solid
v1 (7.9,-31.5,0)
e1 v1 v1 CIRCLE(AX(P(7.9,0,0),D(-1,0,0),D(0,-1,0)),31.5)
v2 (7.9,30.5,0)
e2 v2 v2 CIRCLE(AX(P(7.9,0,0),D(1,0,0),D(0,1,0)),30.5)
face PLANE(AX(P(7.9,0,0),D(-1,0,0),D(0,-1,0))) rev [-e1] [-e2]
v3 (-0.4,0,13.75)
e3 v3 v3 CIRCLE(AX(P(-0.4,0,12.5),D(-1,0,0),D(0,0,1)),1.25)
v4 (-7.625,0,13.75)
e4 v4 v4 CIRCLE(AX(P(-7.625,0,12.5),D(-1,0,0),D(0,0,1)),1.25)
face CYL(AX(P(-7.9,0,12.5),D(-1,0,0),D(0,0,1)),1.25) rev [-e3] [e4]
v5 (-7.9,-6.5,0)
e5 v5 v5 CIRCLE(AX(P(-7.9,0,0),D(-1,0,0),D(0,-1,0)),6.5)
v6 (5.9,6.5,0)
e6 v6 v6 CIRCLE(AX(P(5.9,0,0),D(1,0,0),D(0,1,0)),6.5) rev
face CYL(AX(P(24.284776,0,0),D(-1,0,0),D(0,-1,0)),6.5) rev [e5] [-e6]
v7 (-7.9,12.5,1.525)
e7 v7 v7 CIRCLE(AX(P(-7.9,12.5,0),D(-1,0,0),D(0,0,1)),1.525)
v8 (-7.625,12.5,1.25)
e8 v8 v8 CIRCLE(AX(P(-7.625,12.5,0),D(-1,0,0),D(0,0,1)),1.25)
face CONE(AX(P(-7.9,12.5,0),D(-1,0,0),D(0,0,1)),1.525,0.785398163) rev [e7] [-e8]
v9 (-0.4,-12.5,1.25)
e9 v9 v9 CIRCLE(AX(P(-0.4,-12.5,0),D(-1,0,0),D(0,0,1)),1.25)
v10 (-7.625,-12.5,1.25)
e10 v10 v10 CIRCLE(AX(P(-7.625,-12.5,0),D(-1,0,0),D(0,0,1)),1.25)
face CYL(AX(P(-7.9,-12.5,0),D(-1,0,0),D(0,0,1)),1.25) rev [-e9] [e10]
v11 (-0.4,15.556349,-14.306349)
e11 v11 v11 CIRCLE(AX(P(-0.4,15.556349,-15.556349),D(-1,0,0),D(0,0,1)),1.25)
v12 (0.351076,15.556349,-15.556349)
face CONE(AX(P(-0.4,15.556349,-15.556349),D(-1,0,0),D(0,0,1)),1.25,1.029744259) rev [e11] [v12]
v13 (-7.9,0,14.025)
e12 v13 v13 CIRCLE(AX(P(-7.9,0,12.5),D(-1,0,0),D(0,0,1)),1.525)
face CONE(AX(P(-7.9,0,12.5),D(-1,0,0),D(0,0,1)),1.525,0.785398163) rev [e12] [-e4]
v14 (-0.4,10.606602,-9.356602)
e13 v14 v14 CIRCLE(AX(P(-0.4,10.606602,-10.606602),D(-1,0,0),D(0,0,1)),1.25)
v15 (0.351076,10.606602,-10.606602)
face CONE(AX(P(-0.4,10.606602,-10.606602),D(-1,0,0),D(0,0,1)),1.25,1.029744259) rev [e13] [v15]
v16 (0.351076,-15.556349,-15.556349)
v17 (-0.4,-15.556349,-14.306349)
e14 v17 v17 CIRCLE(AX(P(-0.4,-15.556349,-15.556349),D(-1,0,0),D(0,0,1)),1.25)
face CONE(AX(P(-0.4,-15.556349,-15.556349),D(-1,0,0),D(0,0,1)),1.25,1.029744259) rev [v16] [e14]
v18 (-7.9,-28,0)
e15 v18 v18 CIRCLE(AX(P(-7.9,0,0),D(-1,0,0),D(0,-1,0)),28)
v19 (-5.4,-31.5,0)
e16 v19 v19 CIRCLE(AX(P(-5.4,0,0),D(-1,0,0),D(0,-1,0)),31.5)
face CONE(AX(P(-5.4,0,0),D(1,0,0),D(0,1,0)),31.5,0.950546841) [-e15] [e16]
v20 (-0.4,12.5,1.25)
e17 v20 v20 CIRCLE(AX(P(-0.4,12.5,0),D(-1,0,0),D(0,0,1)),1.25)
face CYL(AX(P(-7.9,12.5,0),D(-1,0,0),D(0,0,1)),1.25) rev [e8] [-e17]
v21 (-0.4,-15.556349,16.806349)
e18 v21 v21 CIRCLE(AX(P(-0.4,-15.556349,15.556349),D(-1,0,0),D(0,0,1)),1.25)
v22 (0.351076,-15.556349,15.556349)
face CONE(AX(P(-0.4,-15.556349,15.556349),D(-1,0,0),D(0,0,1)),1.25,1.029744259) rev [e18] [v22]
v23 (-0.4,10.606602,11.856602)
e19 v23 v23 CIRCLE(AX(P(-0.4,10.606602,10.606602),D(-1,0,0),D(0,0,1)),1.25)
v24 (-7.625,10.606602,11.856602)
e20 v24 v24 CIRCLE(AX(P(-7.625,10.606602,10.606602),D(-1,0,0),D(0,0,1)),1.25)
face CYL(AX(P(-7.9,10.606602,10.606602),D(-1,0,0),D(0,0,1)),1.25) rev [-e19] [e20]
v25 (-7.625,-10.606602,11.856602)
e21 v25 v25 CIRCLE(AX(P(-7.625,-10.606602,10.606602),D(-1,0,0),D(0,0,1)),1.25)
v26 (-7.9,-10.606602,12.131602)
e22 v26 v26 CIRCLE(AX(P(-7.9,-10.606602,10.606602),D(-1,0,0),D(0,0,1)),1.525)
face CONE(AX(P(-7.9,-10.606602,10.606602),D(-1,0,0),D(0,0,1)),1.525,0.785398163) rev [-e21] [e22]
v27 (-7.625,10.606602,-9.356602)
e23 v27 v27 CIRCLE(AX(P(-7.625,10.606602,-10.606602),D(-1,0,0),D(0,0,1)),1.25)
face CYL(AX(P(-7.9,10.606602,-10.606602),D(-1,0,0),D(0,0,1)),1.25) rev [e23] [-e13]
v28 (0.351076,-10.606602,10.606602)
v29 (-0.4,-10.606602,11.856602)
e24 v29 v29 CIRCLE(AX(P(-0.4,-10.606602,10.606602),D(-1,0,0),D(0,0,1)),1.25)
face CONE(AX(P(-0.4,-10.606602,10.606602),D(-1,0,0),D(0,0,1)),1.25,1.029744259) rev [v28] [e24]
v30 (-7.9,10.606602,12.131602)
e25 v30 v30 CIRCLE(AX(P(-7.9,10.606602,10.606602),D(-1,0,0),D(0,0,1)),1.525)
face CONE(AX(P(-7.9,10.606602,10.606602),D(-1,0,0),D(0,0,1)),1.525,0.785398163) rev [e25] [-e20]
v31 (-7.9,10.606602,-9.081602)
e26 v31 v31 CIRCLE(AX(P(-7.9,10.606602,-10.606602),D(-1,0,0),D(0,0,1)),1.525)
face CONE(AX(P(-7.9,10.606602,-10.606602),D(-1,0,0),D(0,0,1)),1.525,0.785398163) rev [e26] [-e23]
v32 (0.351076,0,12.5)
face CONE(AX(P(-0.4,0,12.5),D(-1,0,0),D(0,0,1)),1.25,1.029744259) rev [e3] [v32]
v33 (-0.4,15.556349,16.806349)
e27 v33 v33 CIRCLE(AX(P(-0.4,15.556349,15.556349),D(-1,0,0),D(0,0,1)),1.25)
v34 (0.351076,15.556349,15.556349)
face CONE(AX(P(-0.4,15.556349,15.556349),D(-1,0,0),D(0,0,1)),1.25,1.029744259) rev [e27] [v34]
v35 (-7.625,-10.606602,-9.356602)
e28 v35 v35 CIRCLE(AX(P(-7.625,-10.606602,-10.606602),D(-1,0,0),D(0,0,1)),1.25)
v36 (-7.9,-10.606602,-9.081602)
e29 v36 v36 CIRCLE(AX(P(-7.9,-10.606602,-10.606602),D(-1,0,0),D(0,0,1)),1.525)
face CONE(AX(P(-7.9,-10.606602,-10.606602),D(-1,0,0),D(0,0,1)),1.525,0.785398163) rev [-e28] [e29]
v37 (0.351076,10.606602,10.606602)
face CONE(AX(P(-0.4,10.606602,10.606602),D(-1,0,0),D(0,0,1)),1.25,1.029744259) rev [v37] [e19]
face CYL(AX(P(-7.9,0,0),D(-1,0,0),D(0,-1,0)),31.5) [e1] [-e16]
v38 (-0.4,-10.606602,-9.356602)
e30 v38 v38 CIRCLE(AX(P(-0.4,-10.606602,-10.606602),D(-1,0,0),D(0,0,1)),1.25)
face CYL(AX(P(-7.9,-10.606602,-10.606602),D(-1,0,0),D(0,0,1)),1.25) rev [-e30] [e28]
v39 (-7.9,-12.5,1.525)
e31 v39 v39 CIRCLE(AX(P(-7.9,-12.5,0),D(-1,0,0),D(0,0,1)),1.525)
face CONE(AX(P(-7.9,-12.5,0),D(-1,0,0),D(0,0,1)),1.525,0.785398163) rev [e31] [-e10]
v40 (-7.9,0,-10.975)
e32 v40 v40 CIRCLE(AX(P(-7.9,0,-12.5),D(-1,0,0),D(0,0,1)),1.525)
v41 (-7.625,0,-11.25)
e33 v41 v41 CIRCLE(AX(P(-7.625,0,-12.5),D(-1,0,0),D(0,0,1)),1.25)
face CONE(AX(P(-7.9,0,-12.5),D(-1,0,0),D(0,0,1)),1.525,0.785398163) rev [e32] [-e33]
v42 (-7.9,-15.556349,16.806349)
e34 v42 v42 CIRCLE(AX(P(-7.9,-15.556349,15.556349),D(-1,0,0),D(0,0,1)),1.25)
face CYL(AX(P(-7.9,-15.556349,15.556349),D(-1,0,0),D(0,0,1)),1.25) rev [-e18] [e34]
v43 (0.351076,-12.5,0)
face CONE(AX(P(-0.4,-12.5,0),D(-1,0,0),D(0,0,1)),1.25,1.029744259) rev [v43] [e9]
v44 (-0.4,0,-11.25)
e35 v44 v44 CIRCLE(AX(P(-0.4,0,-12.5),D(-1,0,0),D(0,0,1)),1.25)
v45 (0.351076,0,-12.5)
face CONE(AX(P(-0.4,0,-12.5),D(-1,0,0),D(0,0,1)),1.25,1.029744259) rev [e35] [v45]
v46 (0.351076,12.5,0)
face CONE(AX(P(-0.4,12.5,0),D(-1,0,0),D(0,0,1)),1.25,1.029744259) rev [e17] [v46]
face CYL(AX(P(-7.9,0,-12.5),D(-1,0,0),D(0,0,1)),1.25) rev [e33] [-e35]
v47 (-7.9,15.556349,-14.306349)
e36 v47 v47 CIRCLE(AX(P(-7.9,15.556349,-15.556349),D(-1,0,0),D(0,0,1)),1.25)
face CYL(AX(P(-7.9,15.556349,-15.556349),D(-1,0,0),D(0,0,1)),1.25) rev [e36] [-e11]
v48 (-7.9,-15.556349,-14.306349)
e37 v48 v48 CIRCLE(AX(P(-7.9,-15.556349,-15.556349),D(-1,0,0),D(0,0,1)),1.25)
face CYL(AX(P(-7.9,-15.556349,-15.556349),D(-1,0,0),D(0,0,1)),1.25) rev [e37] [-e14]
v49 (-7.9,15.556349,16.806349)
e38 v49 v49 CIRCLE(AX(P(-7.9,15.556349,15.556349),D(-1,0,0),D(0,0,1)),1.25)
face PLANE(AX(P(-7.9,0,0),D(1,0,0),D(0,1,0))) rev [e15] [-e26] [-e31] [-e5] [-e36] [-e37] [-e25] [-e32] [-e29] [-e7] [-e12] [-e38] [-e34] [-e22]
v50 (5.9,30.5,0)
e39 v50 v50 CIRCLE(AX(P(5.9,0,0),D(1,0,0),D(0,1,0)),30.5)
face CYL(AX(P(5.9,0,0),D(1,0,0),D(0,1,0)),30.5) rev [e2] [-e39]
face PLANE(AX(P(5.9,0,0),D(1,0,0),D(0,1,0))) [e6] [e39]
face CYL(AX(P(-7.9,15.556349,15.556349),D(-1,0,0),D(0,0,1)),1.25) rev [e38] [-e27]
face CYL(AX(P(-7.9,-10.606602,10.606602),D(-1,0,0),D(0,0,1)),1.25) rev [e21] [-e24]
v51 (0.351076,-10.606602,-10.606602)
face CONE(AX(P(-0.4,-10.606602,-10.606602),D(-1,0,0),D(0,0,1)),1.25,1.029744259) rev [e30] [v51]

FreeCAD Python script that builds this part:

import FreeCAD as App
import Part
import Sketcher

V = App.Vector
Q = App.Units.Quantity


def add_polygon(sketch, points):
    """Adds a closed chain of lines whose ends are joined by coincident constraints."""
    first, n = sketch.GeometryCount, len(points)
    for a, b in zip(points, points[1:] + points[:1]):
        sketch.addGeometry(Part.LineSegment(App.Vector(*a, 0), App.Vector(*b, 0)), False)
    for i in range(n):
        sketch.addConstraint(Sketcher.Constraint("Coincident", first + i, 2, first + (i + 1) % n, 1))

doc = App.newDocument("Part")
body = doc.addObject("PartDesign::Body", "Body")

sketch1 = body.newObject("Sketcher::SketchObject", "Sketch")
sketch1.AttachmentSupport = (doc.getObject("XY_Plane"), [""])
sketch1.MapMode = "FlatFace"
add_polygon(sketch1, [(-7.9, 0), (7.9, 0), (7.9, 31.5), (-5.4, 31.5), (-7.9, 28)])
sketch1.addConstraint(Sketcher.Constraint("Horizontal", 0))
sketch1.addConstraint(Sketcher.Constraint("Vertical", 1))
sketch1.addConstraint(Sketcher.Constraint("Horizontal", 2))
sketch1.addConstraint(Sketcher.Constraint("Vertical", 4))
sketch1.addConstraint(Sketcher.Constraint("Symmetric", 0, 2, 4, 2, -1, 1))
sketch1.addConstraint(Sketcher.Constraint("DistanceY", 4, 2, 4, 1, Q("28 mm")))
sketch1.addConstraint(Sketcher.Constraint("DistanceX", 0, 1, 0, 2, Q("15.8 mm")))
sketch1.addConstraint(Sketcher.Constraint("DistanceX", 2, 2, 2, 1, Q("13.3 mm")))
sketch1.addConstraint(Sketcher.Constraint("DistanceY", 1, 1, 1, 2, Q("31.5 mm")))
revolution = body.newObject("PartDesign::Revolution", "Revolution")
revolution.Profile = sketch1
revolution.ReferenceAxis = (sketch1, ["H_Axis"])
revolution.Angle = 360

sketch2 = body.newObject("Sketcher::SketchObject", "Sketch001")
sketch2.AttachmentSupport = (doc.getObject("YZ_Plane"), [""])
sketch2.MapMode = "FlatFace"
sketch2.AttachmentOffset = App.Placement(V(0, 0, 7.9), App.Rotation())
sketch2.addGeometry(Part.Circle(V(0, 0, 0), V(0, 0, 1), 30.5), False)
sketch2.addConstraint(Sketcher.Constraint("Coincident", 0, 3, -1, 1))
sketch2.addConstraint(Sketcher.Constraint("Diameter", 0, Q("61 mm")))
pocket1 = body.newObject("PartDesign::Pocket", "Pocket")
pocket1.Profile = sketch2
pocket1.Length = 2

sketch3 = body.newObject("Sketcher::SketchObject", "Sketch002")
sketch3.AttachmentSupport = (doc.getObject("YZ_Plane"), [""])
sketch3.MapMode = "FlatFace"
sketch3.AttachmentOffset = App.Placement(V(0, 0, -7.9), App.Rotation())
sketch3.addGeometry(Part.Circle(V(15.556349, -15.556349, 0), V(0, 0, 1), 1.25), False)
sketch3.addGeometry(Part.Circle(V(15.556349, 15.556349, 0), V(0, 0, 1), 1.25), False)
sketch3.addGeometry(Part.Circle(V(-15.556349, 15.556349, 0), V(0, 0, 1), 1.25), False)
sketch3.addGeometry(Part.Circle(V(-15.556349, -15.556349, 0), V(0, 0, 1), 1.25), False)
sketch3.addConstraint(Sketcher.Constraint("Equal", 0, 1))
sketch3.addConstraint(Sketcher.Constraint("Equal", 1, 2))
sketch3.addConstraint(Sketcher.Constraint("Equal", 2, 3))
sketch3.addConstraint(Sketcher.Constraint("Symmetric", 0, 3, 2, 3, -1, 1))
sketch3.addConstraint(Sketcher.Constraint("Symmetric", 1, 3, 3, 3, -1, 1))
sketch3.addConstraint(Sketcher.Constraint("Symmetric", 1, 3, 2, 3, -2))
sketch3.addConstraint(Sketcher.Constraint("Diameter", 0, Q("2.5 mm")))
sketch3.addConstraint(Sketcher.Constraint("DistanceY", 0, 3, 1, 3, Q("31.112698 mm")))
sketch3.addConstraint(Sketcher.Constraint("DistanceX", 2, 3, 1, 3, Q("31.112698 mm")))
doc.recompute()
hole = body.newObject("PartDesign::Hole", "Hole")
hole.Profile = sketch3
hole.ThreadType = "None"
hole.Diameter = 2.5
hole.DepthType = "Dimension"
hole.Depth = 7.5
hole.DrillPoint = "Angled"
hole.DrillPointAngle = 118
hole.Reversed = True

sketch4 = body.newObject("Sketcher::SketchObject", "Sketch003")
sketch4.AttachmentSupport = (doc.getObject("YZ_Plane"), [""])
sketch4.MapMode = "FlatFace"
sketch4.AttachmentOffset = App.Placement(V(0, 0, -7.9), App.Rotation())
sketch4.addGeometry(Part.Circle(V(10.606602, -10.606602, 0), V(0, 0, 1), 1.25), False)
sketch4.addGeometry(Part.Circle(V(-10.606602, -10.606602, 0), V(0, 0, 1), 1.25), False)
sketch4.addGeometry(Part.Circle(V(-10.606602, 10.606602, 0), V(0, 0, 1), 1.25), False)
sketch4.addGeometry(Part.Circle(V(10.606602, 10.606602, 0), V(0, 0, 1), 1.25), False)
sketch4.addConstraint(Sketcher.Constraint("Equal", 0, 1))
sketch4.addConstraint(Sketcher.Constraint("Equal", 1, 2))
sketch4.addConstraint(Sketcher.Constraint("Equal", 2, 3))
sketch4.addConstraint(Sketcher.Constraint("Symmetric", 0, 3, 2, 3, -1, 1))
sketch4.addConstraint(Sketcher.Constraint("Symmetric", 1, 3, 3, 3, -1, 1))
sketch4.addConstraint(Sketcher.Constraint("Symmetric", 0, 3, 1, 3, -2))
sketch4.addConstraint(Sketcher.Constraint("Diameter", 0, Q("2.5 mm")))
sketch4.addConstraint(Sketcher.Constraint("DistanceX", -1, 1, 0, 3, Q("10.606602 mm")))
sketch4.addConstraint(Sketcher.Constraint("DistanceY", 0, 3, -1, 1, Q("10.606602 mm")))
doc.recompute()
hole2 = body.newObject("PartDesign::Hole", "Hole001")
hole2.Profile = sketch4
hole2.ThreadType = "None"
hole2.Diameter = 2.5
hole2.DepthType = "Dimension"
hole2.Depth = 7.5
hole2.DrillPoint = "Angled"
hole2.DrillPointAngle = 118
hole2.HoleCutType = "Countersink"
hole2.HoleCutDiameter = 3.05
hole2.HoleCutCountersinkAngle = 90
hole2.Reversed = True

sketch5 = body.newObject("Sketcher::SketchObject", "Sketch004")
sketch5.AttachmentSupport = (doc.getObject("YZ_Plane"), [""])
sketch5.MapMode = "FlatFace"
sketch5.AttachmentOffset = App.Placement(V(0, 0, -7.9), App.Rotation())
sketch5.addGeometry(Part.Circle(V(12.5, 0, 0), V(0, 0, 1), 1.25), False)
sketch5.addGeometry(Part.Circle(V(0, -12.5, 0), V(0, 0, 1), 1.25), False)
sketch5.addGeometry(Part.Circle(V(-12.5, 0, 0), V(0, 0, 1), 1.25), False)
sketch5.addGeometry(Part.Circle(V(0, 12.5, 0), V(0, 0, 1), 1.25), False)
sketch5.addConstraint(Sketcher.Constraint("Equal", 0, 1))
sketch5.addConstraint(Sketcher.Constraint("Equal", 1, 2))
sketch5.addConstraint(Sketcher.Constraint("Equal", 2, 3))
sketch5.addConstraint(Sketcher.Constraint("Symmetric", 0, 3, 2, 3, -1, 1))
sketch5.addConstraint(Sketcher.Constraint("Symmetric", 1, 3, 3, 3, -1, 1))
sketch5.addConstraint(Sketcher.Constraint("PointOnObject", 0, 3, -1))
sketch5.addConstraint(Sketcher.Constraint("PointOnObject", 1, 3, -2))
sketch5.addConstraint(Sketcher.Constraint("Diameter", 0, Q("2.5 mm")))
sketch5.addConstraint(Sketcher.Constraint("DistanceX", 2, 3, 0, 3, Q("25 mm")))
sketch5.addConstraint(Sketcher.Constraint("DistanceY", 1, 3, 3, 3, Q("25 mm")))
doc.recompute()
hole3 = body.newObject("PartDesign::Hole", "Hole002")
hole3.Profile = sketch5
hole3.ThreadType = "None"
hole3.Diameter = 2.5
hole3.DepthType = "Dimension"
hole3.Depth = 7.5
hole3.DrillPoint = "Angled"
hole3.DrillPointAngle = 118
hole3.HoleCutType = "Countersink"
hole3.HoleCutDiameter = 3.05
hole3.HoleCutCountersinkAngle = 90
hole3.Reversed = True

sketch6 = body.newObject("Sketcher::SketchObject", "Sketch005")
sketch6.AttachmentSupport = (doc.getObject("YZ_Plane"), [""])
sketch6.MapMode = "FlatFace"
sketch6.AttachmentOffset = App.Placement(V(0, 0, -7.9), App.Rotation())
sketch6.addGeometry(Part.Circle(V(0, 0, 0), V(0, 0, 1), 6.5), False)
sketch6.addConstraint(Sketcher.Constraint("Coincident", 0, 3, -1, 1))
sketch6.addConstraint(Sketcher.Constraint("Diameter", 0, Q("13 mm")))
pocket2 = body.newObject("PartDesign::Pocket", "Pocket001")
pocket2.Profile = sketch6
pocket2.Length = 13.8
pocket2.Reversed = True

doc.recompute()
